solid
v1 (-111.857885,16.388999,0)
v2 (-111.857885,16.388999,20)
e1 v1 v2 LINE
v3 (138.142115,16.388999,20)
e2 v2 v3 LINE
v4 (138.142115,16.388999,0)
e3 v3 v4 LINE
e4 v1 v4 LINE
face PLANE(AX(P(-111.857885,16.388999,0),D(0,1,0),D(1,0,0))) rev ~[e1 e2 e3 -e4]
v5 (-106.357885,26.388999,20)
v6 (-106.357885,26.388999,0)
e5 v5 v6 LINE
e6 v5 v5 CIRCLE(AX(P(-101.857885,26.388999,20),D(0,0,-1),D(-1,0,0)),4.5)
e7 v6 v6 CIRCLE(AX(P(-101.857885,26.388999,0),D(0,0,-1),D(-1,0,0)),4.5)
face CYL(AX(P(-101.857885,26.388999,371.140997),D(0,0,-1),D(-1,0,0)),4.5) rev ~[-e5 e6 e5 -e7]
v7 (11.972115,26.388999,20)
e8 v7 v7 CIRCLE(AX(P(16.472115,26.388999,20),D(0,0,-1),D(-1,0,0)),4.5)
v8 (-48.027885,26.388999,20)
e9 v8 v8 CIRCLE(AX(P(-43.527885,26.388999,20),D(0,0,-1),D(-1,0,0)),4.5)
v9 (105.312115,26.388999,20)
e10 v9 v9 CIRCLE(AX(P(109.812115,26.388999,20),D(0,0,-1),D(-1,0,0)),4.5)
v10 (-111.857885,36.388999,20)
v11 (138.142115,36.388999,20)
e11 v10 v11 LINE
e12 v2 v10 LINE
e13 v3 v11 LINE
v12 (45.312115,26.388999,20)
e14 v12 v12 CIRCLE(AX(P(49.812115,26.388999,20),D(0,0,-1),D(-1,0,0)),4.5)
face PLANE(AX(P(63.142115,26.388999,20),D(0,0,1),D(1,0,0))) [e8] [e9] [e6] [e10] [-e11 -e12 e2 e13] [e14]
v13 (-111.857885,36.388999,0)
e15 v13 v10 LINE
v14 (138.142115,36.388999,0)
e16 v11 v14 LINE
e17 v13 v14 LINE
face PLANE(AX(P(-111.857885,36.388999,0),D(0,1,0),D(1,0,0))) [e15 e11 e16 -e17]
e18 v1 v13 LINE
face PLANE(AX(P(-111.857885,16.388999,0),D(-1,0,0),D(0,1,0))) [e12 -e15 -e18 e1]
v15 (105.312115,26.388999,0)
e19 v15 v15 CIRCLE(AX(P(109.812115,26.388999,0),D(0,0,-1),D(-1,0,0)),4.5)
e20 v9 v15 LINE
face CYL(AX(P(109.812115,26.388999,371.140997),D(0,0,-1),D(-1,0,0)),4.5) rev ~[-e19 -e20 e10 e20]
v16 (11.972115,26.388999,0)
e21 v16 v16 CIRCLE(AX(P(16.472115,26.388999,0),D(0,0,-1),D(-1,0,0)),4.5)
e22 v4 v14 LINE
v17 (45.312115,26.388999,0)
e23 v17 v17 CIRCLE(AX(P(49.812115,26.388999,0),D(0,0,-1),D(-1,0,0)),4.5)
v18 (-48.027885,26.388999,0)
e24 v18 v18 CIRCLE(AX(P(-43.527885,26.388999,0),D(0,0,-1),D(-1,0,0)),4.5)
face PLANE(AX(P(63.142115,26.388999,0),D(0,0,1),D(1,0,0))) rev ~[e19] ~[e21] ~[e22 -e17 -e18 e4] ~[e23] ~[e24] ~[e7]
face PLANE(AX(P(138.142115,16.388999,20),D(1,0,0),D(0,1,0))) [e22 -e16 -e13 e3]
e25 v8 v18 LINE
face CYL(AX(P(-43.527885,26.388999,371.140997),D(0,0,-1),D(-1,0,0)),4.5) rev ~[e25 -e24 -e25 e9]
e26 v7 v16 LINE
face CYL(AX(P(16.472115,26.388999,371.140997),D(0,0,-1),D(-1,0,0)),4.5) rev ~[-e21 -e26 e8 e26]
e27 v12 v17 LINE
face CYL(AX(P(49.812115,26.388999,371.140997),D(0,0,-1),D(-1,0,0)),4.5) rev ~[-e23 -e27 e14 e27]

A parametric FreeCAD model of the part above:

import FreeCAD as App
import Part
import Sketcher
Q = App.Units.Quantity


def add_polygon(sketch, points):
    """Adds a closed chain of lines whose ends are joined by coincident constraints."""
    first, n = sketch.GeometryCount, len(points)
    for a, b in zip(points, points[1:] + points[:1]):
        sketch.addGeometry(Part.LineSegment(App.Vector(*a, 0), App.Vector(*b, 0)), False)
    for i in range(n):
        sketch.addConstraint(Sketcher.Constraint("Coincident", first + i, 2, first + (i + 1) % n, 1))

doc = App.newDocument("Part")
body = doc.addObject("PartDesign::Body", "Body")

# Sketch on XY plane
sketch1 = doc.addObject("Sketcher::SketchObject", "Sketch")
body.addObject(sketch1)
sketch1.AttachmentSupport = (doc.XY_Plane, [""])
sketch1.MapMode = "FlatFace"
add_polygon(sketch1, [(-111.857885, 36.388999), (-111.857885, 16.388999), (238.142115, 16.388999), (238.142115, 36.388999)])  # lines 0-3
sketch1.addConstraint([
    Sketcher.Constraint("Vertical", 0),
    Sketcher.Constraint("Horizontal", 1),
    Sketcher.Constraint("Vertical", 2),
    Sketcher.Constraint("Horizontal", 3),
    Sketcher.Constraint("DistanceX", 1, 1, 1, 2, Q("350 mm")),
    Sketcher.Constraint("DistanceY", 0, 2, 0, 1, Q("20 mm")),
    Sketcher.Constraint("DistanceY", -1, 1, 0, 2, Q("16.388999 mm")),
    Sketcher.Constraint("DistanceX", 0, 2, -1, 1, Q("111.857885 mm")),
])
pad1 = doc.addObject("PartDesign::Pad", "Pad")
body.addObject(pad1)
pad1.Profile = sketch1
pad1.Length = 20

# Sketch on XY plane
sketch2 = doc.addObject("Sketcher::SketchObject", "Sketch001")
body.addObject(sketch2)
sketch2.AttachmentSupport = (doc.XY_Plane, [""])
sketch2.MapMode = "FlatFace"
sketch2.AttachmentOffset = App.Placement(App.Vector(0, 0, 20), App.Rotation())
sketch2.addGeometry([
    Part.Circle(App.Vector(-43.527885, 26.388999, 0), App.Vector(0, 0, 1), 4.5),
    Part.Circle(App.Vector(49.812115, 26.388999, 0), App.Vector(0, 0, 1), 4.5),
], False)
sketch2.addConstraint([
    Sketcher.Constraint("Equal", 0, 1),
    Sketcher.Constraint("Horizontal", 0, 3, 1, 3),
    Sketcher.Constraint("Diameter", 0, Q("9 mm")),
    Sketcher.Constraint("DistanceX", 0, 3, 1, 3, Q("93.34 mm")),
    Sketcher.Constraint("DistanceY", -1, 1, 0, 3, Q("26.388999 mm")),
    Sketcher.Constraint("DistanceX", 0, 3, -1, 1, Q("43.527885 mm")),
])
doc.recompute()
hole = doc.addObject("PartDesign::Hole", "Hole")
body.addObject(hole)
hole.Profile = sketch2
hole.ThreadType = "None"
hole.Diameter = 9
hole.DepthType = "ThroughAll"

# Sketch on XY plane
sketch3 = doc.addObject("Sketcher::SketchObject", "Sketch002")
body.addObject(sketch3)
sketch3.AttachmentSupport = (doc.XY_Plane, [""])
sketch3.MapMode = "FlatFace"
sketch3.AttachmentOffset = App.Placement(App.Vector(0, 0, 20), App.Rotation())
sketch3.addGeometry([
    Part.Circle(App.Vector(-101.857885, 26.388999, 0), App.Vector(0, 0, 1), 4.5),
    Part.Circle(App.Vector(228.142115, 26.388999, 0), App.Vector(0, 0, 1), 4.5),
], False)
sketch3.addConstraint([
    Sketcher.Constraint("Equal", 0, 1),
    Sketcher.Constraint("Horizontal", 0, 3, 1, 3),
    Sketcher.Constraint("Diameter", 0, Q("9 mm")),
    Sketcher.Constraint("DistanceX", 0, 3, 1, 3, Q("330 mm")),
    Sketcher.Constraint("DistanceY", -1, 1, 0, 3, Q("26.388999 mm")),
    Sketcher.Constraint("DistanceX", 0, 3, -1, 1, Q("101.857885 mm")),
])
doc.recompute()
hole2 = doc.addObject("PartDesign::Hole", "Hole001")
body.addObject(hole2)
hole2.Profile = sketch3
hole2.ThreadType = "None"
hole2.Diameter = 9
hole2.DepthType = "ThroughAll"

# Sketch on XY plane
sketch4 = doc.addObject("Sketcher::SketchObject", "Sketch003")
body.addObject(sketch4)
sketch4.AttachmentSupport = (doc.XY_Plane, [""])
sketch4.MapMode = "FlatFace"
sketch4.AttachmentOffset = App.Placement(App.Vector(0, 0, 20), App.Rotation())
sketch4.addGeometry([
    Part.Circle(App.Vector(16.472115, 26.388999, 0), App.Vector(0, 0, 1), 4.5),
    Part.Circle(App.Vector(109.812115, 26.388999, 0), App.Vector(0, 0, 1), 4.5),
], False)
sketch4.addConstraint([
    Sketcher.Constraint("Equal", 0, 1),
    Sketcher.Constraint("Horizontal", 0, 3, 1, 3),
    Sketcher.Constraint("Diameter", 0, Q("9 mm")),
    Sketcher.Constraint("DistanceX", 0, 3, 1, 3, Q("93.34 mm")),
    Sketcher.Constraint("DistanceY", -1, 1, 0, 3, Q("26.388999 mm")),
    Sketcher.Constraint("DistanceX", -1, 1, 0, 3, Q("16.472115 mm")),
])
doc.recompute()
hole3 = doc.addObject("PartDesign::Hole", "Hole002")
body.addObject(hole3)
hole3.Profile = sketch4
hole3.ThreadType = "None"
hole3.Diameter = 9
hole3.DepthType = "ThroughAll"

# Sketch on XY plane
sketch5 = doc.addObject("Sketcher::SketchObject", "Sketch004")
body.addObject(sketch5)
sketch5.AttachmentSupport = (doc.XY_Plane, [""])
sketch5.MapMode = "FlatFace"
sketch5.AttachmentOffset = App.Placement(App.Vector(0, 0, 20), App.Rotation())
add_polygon(sketch5, [(138.142115, 36.388999), (138.142115, 16.388999), (238.142115, 16.388999), (238.142115, 36.388999)])  # lines 0-3
sketch5.addGeometry(Part.Circle(App.Vector(228.142115, 26.388999, 0), App.Vector(0, 0, 1), 4.5), False)  # 4
sketch5.addConstraint([
    Sketcher.Constraint("Vertical", 0),
    Sketcher.Constraint("Horizontal", 1),
    Sketcher.Constraint("Vertical", 2),
    Sketcher.Constraint("Horizontal", 3),
    Sketcher.Constraint("Diameter", 4, Q("9 mm")),
    Sketcher.Constraint("DistanceX", 1, 1, 1, 2, Q("100 mm")),
    Sketcher.Constraint("DistanceY", 0, 2, 0, 1, Q("20 mm")),
    Sketcher.Constraint("DistanceX", 0, 2, 4, 3, Q("90 mm")),
    Sketcher.Constraint("DistanceY", 0, 2, 4, 3, Q("10 mm")),
    Sketcher.Constraint("DistanceY", -1, 1, 4, 3, Q("26.388999 mm")),
    Sketcher.Constraint("DistanceX", -1, 1, 4, 3, Q("228.142115 mm")),
])
pocket1 = doc.addObject("PartDesign::Pocket", "Pocket")
body.addObject(pocket1)
pocket1.Profile = sketch5
pocket1.Length = 25

doc.recompute()
